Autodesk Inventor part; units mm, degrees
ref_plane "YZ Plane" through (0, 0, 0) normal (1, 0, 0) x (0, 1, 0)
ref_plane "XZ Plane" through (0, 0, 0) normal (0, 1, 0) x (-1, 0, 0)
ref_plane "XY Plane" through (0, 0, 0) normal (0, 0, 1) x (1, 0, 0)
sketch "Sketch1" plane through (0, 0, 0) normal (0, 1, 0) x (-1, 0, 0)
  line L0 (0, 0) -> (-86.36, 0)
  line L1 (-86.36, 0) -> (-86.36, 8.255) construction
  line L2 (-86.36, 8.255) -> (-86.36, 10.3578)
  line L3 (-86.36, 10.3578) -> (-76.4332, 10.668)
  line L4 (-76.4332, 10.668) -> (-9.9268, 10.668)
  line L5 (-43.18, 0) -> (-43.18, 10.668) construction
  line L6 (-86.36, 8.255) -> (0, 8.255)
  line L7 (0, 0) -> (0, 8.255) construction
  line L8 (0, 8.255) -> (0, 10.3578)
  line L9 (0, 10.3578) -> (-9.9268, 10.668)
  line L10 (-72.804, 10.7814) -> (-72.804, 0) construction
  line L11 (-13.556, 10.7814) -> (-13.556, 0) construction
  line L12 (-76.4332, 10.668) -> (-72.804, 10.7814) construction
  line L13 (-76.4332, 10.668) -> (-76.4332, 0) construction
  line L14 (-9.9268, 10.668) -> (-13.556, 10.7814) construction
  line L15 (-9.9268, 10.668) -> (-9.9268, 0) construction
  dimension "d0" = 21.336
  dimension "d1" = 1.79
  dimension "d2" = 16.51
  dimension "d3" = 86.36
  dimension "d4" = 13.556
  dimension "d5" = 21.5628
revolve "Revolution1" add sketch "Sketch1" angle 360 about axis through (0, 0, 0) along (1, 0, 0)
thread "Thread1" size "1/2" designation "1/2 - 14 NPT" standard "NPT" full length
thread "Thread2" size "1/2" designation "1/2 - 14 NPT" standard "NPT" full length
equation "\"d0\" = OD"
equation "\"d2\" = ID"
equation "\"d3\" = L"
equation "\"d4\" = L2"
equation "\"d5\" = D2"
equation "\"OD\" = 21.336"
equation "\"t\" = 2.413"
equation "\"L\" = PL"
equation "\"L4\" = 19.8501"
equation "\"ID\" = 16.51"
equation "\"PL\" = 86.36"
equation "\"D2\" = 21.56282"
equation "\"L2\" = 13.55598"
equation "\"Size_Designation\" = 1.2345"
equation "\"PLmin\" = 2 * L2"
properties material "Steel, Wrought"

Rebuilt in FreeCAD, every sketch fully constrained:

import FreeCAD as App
import Part
import Sketcher

V = App.Vector
Q = App.Units.Quantity

doc = App.newDocument("Part")
params = doc.addObject("Spreadsheet::Sheet", "Params")
for row, (alias, value) in enumerate([
    ("sketch1_width", "3.4 in"),
    ("sketch1_length", "0.391 in"),
    ("revolution_angle", "360 deg"),
], start=1):
    params.set(f"A{row}", alias)
    params.set(f"B{row}", "=" + value)
    params.setAlias(f"B{row}", alias)

body = doc.addObject("PartDesign::Body", "Body")

# Sketch on XZ plane
sketch1 = doc.addObject("Sketcher::SketchObject", "Sketch")
body.addObject(sketch1)
sketch1.AttachmentSupport = (doc.XZ_Plane, [""])
sketch1.MapMode = "FlatFace"
sketch1.addGeometry(Part.LineSegment(V(86.36, 10.3578, 0), V(86.36, 8.255, 0)), False)
sketch1.addGeometry(Part.LineSegment(V(86.36, 8.255, 0), V(0, 8.255, 0)), False)
sketch1.addGeometry(Part.LineSegment(V(0, 8.255, 0), V(0, 10.3578, 0)), False)
sketch1.addGeometry(Part.LineSegment(V(0, 10.3578, 0), V(9.9268, 10.668, 0)), False)
sketch1.addGeometry(Part.LineSegment(V(9.9268, 10.668, 0), V(76.4332, 10.668, 0)), False)
sketch1.addGeometry(Part.LineSegment(V(76.4332, 10.668, 0), V(86.36, 10.3578, 0)), False)
sketch1.addConstraint(Sketcher.Constraint("Coincident", 0, 2, 1, 1))
sketch1.addConstraint(Sketcher.Constraint("Coincident", 1, 2, 2, 1))
sketch1.addConstraint(Sketcher.Constraint("Coincident", 2, 2, 3, 1))
sketch1.addConstraint(Sketcher.Constraint("Coincident", 3, 2, 4, 1))
sketch1.addConstraint(Sketcher.Constraint("Coincident", 4, 2, 5, 1))
sketch1.addConstraint(Sketcher.Constraint("Coincident", 5, 2, 0, 1))
sketch1.addConstraint(Sketcher.Constraint("Vertical", 0))
sketch1.addConstraint(Sketcher.Constraint("Horizontal", 1))
sketch1.addConstraint(Sketcher.Constraint("Vertical", 2))
sketch1.addConstraint(Sketcher.Constraint("Horizontal", 4))
sketch1.addConstraint(Sketcher.Constraint("PointOnObject", 1, 2, -2))
sketch1.addConstraint(Sketcher.Constraint("Horizontal", 2, 2, 5, 2))
sketch1.addConstraint(Sketcher.Constraint("Equal", 3, 5))
sketch1.addConstraint(Sketcher.Constraint("DistanceX", 1, 2, 1, 1, Q("3.4 in")))
sketch1.addConstraint(Sketcher.Constraint("Angle", 3, Q("1.7898 deg")))
sketch1.addConstraint(Sketcher.Constraint("DistanceY", -1, 1, 3, 2, Q("0.42 in")))
sketch1.addConstraint(Sketcher.Constraint("Distance", 3, Q("0.391 in")))
sketch1.addConstraint(Sketcher.Constraint("DistanceY", -1, 1, 0, 2, Q("0.325 in")))
sketch1.setExpression("Constraints[13]", "Params.sketch1_width")
sketch1.setExpression("Constraints[16]", "Params.sketch1_length")
revolution = doc.addObject("PartDesign::Revolution", "Revolution")
body.addObject(revolution)
revolution.Profile = sketch1
revolution.ReferenceAxis = (sketch1, ["H_Axis"])
revolution.setExpression("Angle", "Params.revolution_angle")

doc.recompute()
